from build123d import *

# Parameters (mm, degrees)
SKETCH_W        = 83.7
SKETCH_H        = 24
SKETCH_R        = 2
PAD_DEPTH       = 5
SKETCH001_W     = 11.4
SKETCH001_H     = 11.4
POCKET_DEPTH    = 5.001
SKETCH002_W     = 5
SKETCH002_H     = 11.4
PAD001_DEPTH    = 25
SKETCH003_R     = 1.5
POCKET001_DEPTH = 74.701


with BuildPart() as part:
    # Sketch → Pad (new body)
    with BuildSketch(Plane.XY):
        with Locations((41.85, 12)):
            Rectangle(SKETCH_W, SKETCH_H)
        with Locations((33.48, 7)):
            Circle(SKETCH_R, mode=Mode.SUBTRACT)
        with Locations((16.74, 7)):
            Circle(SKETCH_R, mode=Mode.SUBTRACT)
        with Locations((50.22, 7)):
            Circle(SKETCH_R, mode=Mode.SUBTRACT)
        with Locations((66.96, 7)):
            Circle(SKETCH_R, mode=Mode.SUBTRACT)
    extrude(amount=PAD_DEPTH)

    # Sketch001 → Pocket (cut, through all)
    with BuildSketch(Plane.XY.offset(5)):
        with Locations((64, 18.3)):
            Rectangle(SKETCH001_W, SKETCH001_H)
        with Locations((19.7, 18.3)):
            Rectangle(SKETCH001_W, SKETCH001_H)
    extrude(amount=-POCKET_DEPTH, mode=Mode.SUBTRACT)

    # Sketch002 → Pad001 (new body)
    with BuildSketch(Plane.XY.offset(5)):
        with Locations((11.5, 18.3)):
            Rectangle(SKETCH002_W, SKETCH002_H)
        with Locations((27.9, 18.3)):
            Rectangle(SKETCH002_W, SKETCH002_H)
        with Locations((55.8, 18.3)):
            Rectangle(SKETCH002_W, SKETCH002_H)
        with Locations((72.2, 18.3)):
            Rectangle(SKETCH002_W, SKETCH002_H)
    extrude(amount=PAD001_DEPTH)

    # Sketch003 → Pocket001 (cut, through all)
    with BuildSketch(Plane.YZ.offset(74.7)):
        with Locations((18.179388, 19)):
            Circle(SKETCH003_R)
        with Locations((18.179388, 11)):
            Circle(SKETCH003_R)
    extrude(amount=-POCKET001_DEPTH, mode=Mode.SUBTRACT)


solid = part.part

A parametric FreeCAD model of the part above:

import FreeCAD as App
import Part
import Sketcher

V = App.Vector
Q = App.Units.Quantity


def add_polygon(sketch, points):
    """Adds a closed chain of lines whose ends are joined by coincident constraints."""
    first, n = sketch.GeometryCount, len(points)
    for a, b in zip(points, points[1:] + points[:1]):
        sketch.addGeometry(Part.LineSegment(App.Vector(*a, 0), App.Vector(*b, 0)), False)
    for i in range(n):
        sketch.addConstraint(Sketcher.Constraint("Coincident", first + i, 2, first + (i + 1) % n, 1))

doc = App.newDocument("Part")
body = doc.addObject("PartDesign::Body", "Body")

# Sketch on XY plane
sketch1 = doc.addObject("Sketcher::SketchObject", "Sketch")
body.addObject(sketch1)
sketch1.AttachmentSupport = (doc.XY_Plane, [""])
sketch1.MapMode = "FlatFace"
add_polygon(sketch1, [(0, 24), (0, 0), (83.7, 0), (83.7, 24)])  # lines 0-3
sketch1.addGeometry(Part.Circle(V(16.74, 7, 0), V(0, 0, 1), 2), False)  # 4
sketch1.addGeometry(Part.Circle(V(33.48, 7, 0), V(0, 0, 1), 2), False)  # 5
sketch1.addGeometry(Part.Circle(V(50.22, 7, 0), V(0, 0, 1), 2), False)  # 6
sketch1.addGeometry(Part.Circle(V(66.96, 7, 0), V(0, 0, 1), 2), False)  # 7
sketch1.addConstraint([
    Sketcher.Constraint("Vertical", 0),
    Sketcher.Constraint("Horizontal", 1),
    Sketcher.Constraint("Vertical", 2),
    Sketcher.Constraint("Horizontal", 3),
    Sketcher.Constraint("Coincident", 0, 2, -1, 1),
    Sketcher.Constraint("Equal", 4, 5),
    Sketcher.Constraint("Equal", 5, 6),
    Sketcher.Constraint("Equal", 6, 7),
    Sketcher.Constraint("Horizontal", 4, 3, 5, 3),
    Sketcher.Constraint("Horizontal", 5, 3, 6, 3),
    Sketcher.Constraint("Horizontal", 6, 3, 7, 3),
    Sketcher.Constraint("Diameter", 4, Q("4 mm")),
    Sketcher.Constraint("DistanceY", 0, 2, 0, 1, Q("24 mm")),
    Sketcher.Constraint("DistanceX", 1, 1, 1, 2, Q("83.7 mm")),
    Sketcher.Constraint("DistanceY", -1, 1, 4, 3, Q("7 mm")),
    Sketcher.Constraint("DistanceX", -1, 1, 4, 3, Q("16.74 mm")),
    Sketcher.Constraint("DistanceX", -1, 1, 5, 3, Q("33.48 mm")),
    Sketcher.Constraint("DistanceX", -1, 1, 6, 3, Q("50.22 mm")),
    Sketcher.Constraint("DistanceX", -1, 1, 7, 3, Q("66.96 mm")),
])
pad1 = doc.addObject("PartDesign::Pad", "Pad")
body.addObject(pad1)
pad1.Profile = sketch1
pad1.Length = 5

# Sketch on XY plane
sketch2 = doc.addObject("Sketcher::SketchObject", "Sketch001")
body.addObject(sketch2)
sketch2.AttachmentSupport = (doc.XY_Plane, [""])
sketch2.MapMode = "FlatFace"
sketch2.AttachmentOffset = App.Placement(V(0, 0, 5), App.Rotation())
add_polygon(sketch2, [(58.3, 24), (58.3, 12.6), (69.7, 12.6), (69.7, 24)])  # lines 0-3
add_polygon(sketch2, [(14, 24), (14, 12.6), (25.4, 12.6), (25.4, 24)])  # lines 4-7
sketch2.addConstraint([
    Sketcher.Constraint("Vertical", 0),
    Sketcher.Constraint("Horizontal", 1),
    Sketcher.Constraint("Vertical", 2),
    Sketcher.Constraint("Horizontal", 3),
    Sketcher.Constraint("Vertical", 4),
    Sketcher.Constraint("Horizontal", 5),
    Sketcher.Constraint("Vertical", 6),
    Sketcher.Constraint("Horizontal", 7),
    Sketcher.Constraint("Horizontal", 1, 2, 4, 2),
    Sketcher.Constraint("Horizontal", 3, 2, 6, 2),
    Sketcher.Constraint("Equal", 3, 5),
    Sketcher.Constraint("Equal", 7, 0),
    Sketcher.Constraint("DistanceX", 1, 1, 1, 2, Q("11.4 mm")),
    Sketcher.Constraint("DistanceY", -1, 1, 2, 2, Q("24 mm")),
    Sketcher.Constraint("DistanceX", -1, 1, 4, 2, Q("14 mm")),
    Sketcher.Constraint("DistanceX", -1, 1, 0, 2, Q("58.3 mm")),
])
pocket1 = doc.addObject("PartDesign::Pocket", "Pocket")
body.addObject(pocket1)
pocket1.Profile = sketch2
pocket1.Type = "ThroughAll"

# Sketch on XY plane
sketch3 = doc.addObject("Sketcher::SketchObject", "Sketch002")
body.addObject(sketch3)
sketch3.AttachmentSupport = (doc.XY_Plane, [""])
sketch3.MapMode = "FlatFace"
sketch3.AttachmentOffset = App.Placement(V(0, 0, 5), App.Rotation())
add_polygon(sketch3, [(9, 24), (9, 12.6), (14, 12.6), (14, 24)])  # lines 0-3
add_polygon(sketch3, [(25.4, 24), (25.4, 12.6), (30.4, 12.6), (30.4, 24)])  # lines 4-7
add_polygon(sketch3, [(53.3, 24), (53.3, 12.6), (58.3, 12.6), (58.3, 24)])  # lines 8-11
add_polygon(sketch3, [(69.7, 24), (69.7, 12.6), (74.7, 12.6), (74.7, 24)])  # lines 12-15
sketch3.addConstraint([
    Sketcher.Constraint("Vertical", 0),
    Sketcher.Constraint("Horizontal", 1),
    Sketcher.Constraint("Vertical", 2),
    Sketcher.Constraint("Horizontal", 3),
    Sketcher.Constraint("Vertical", 4),
    Sketcher.Constraint("Horizontal", 5),
    Sketcher.Constraint("Vertical", 6),
    Sketcher.Constraint("Horizontal", 7),
    Sketcher.Constraint("Vertical", 8),
    Sketcher.Constraint("Horizontal", 9),
    Sketcher.Constraint("Vertical", 10),
    Sketcher.Constraint("Horizontal", 11),
    Sketcher.Constraint("Vertical", 12),
    Sketcher.Constraint("Horizontal", 13),
    Sketcher.Constraint("Vertical", 14),
    Sketcher.Constraint("Horizontal", 15),
    Sketcher.Constraint("Horizontal", 1, 2, 4, 2),
    Sketcher.Constraint("Horizontal", 3, 2, 6, 2),
    Sketcher.Constraint("Horizontal", 5, 2, 8, 2),
    Sketcher.Constraint("Horizontal", 7, 2, 10, 2),
    Sketcher.Constraint("Horizontal", 9, 2, 12, 2),
    Sketcher.Constraint("Horizontal", 11, 2, 14, 2),
    Sketcher.Constraint("Equal", 3, 5),
    Sketcher.Constraint("Equal", 7, 9),
    Sketcher.Constraint("Equal", 11, 13),
    Sketcher.Constraint("DistanceX", 1, 1, 1, 2, Q("5 mm")),
    Sketcher.Constraint("DistanceY", 0, 2, 0, 1, Q("11.4 mm")),
    Sketcher.Constraint("DistanceX", -1, 1, 0, 2, Q("9 mm")),
    Sketcher.Constraint("DistanceY", -1, 1, 2, 2, Q("24 mm")),
    Sketcher.Constraint("DistanceX", -1, 1, 4, 2, Q("25.4 mm")),
    Sketcher.Constraint("DistanceX", -1, 1, 8, 2, Q("53.3 mm")),
    Sketcher.Constraint("DistanceX", -1, 1, 12, 2, Q("69.7 mm")),
])
pad2 = doc.addObject("PartDesign::Pad", "Pad001")
body.addObject(pad2)
pad2.Profile = sketch3
pad2.Length = 25

# Sketch on YZ plane
sketch4 = doc.addObject("Sketcher::SketchObject", "Sketch003")
body.addObject(sketch4)
sketch4.AttachmentSupport = (doc.YZ_Plane, [""])
sketch4.MapMode = "FlatFace"
sketch4.AttachmentOffset = App.Placement(V(0, 0, 74.7), App.Rotation())
sketch4.addGeometry([
    Part.Circle(V(18.179388, 19, 0), V(0, 0, 1), 1.5),
    Part.Circle(V(18.179388, 11, 0), V(0, 0, 1), 1.5),
], False)
sketch4.addConstraint([
    Sketcher.Constraint("Equal", 0, 1),
    Sketcher.Constraint("Vertical", 0, 3, 1, 3),
    Sketcher.Constraint("Diameter", 0, Q("3 mm")),
    Sketcher.Constraint("DistanceY", -1, 1, 0, 3, Q("19 mm")),
    Sketcher.Constraint("DistanceY", -1, 1, 1, 3, Q("11 mm")),
    Sketcher.Constraint("DistanceX", -1, 1, 0, 3, Q("18.179388 mm")),
])
pocket2 = doc.addObject("PartDesign::Pocket", "Pocket001")
body.addObject(pocket2)
pocket2.Profile = sketch4
pocket2.Type = "ThroughAll"

doc.recompute()
